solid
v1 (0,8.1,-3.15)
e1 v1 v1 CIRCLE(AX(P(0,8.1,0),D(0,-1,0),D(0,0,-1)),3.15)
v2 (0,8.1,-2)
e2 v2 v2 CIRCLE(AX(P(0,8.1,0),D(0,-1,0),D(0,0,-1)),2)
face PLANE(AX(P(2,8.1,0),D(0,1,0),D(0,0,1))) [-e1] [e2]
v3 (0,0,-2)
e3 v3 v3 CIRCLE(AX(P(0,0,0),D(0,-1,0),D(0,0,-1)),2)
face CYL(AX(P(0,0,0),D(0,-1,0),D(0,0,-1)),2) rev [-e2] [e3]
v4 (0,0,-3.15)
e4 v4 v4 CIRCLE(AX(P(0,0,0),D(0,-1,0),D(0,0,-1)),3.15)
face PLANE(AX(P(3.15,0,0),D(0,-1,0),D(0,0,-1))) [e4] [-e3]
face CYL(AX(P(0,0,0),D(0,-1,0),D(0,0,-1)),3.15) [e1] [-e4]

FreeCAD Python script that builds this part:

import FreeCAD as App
import Part
import Sketcher

doc = App.newDocument("Part")
body = doc.addObject("PartDesign::Body", "Body")

# Sketch on XY plane
sketch1 = body.newObject("Sketcher::SketchObject", "Sketch")
sketch1.AttachmentSupport = (doc.getObject("XY_Plane"), [""])
sketch1.MapMode = "FlatFace"
sketch1.addGeometry(Part.LineSegment(App.Vector(2, 8.1, 0), App.Vector(2, 0, 0)), False)
sketch1.addGeometry(Part.LineSegment(App.Vector(2, 0, 0), App.Vector(3.15, 0, 0)), False)
sketch1.addGeometry(Part.LineSegment(App.Vector(3.15, 0, 0), App.Vector(3.15, 8.1, 0)), False)
sketch1.addGeometry(Part.LineSegment(App.Vector(3.15, 8.1, 0), App.Vector(2, 8.1, 0)), False)
sketch1.addConstraint(Sketcher.Constraint("Coincident", 0, 2, 1, 1))
sketch1.addConstraint(Sketcher.Constraint("Coincident", 1, 2, 2, 1))
sketch1.addConstraint(Sketcher.Constraint("Coincident", 2, 2, 3, 1))
sketch1.addConstraint(Sketcher.Constraint("Coincident", 3, 2, 0, 1))
sketch1.addConstraint(Sketcher.Constraint("Vertical", 0))
sketch1.addConstraint(Sketcher.Constraint("Horizontal", 1))
sketch1.addConstraint(Sketcher.Constraint("Vertical", 2))
sketch1.addConstraint(Sketcher.Constraint("Horizontal", 3))
sketch1.addConstraint(Sketcher.Constraint("PointOnObject", 0, 2, -1))
sketch1.addConstraint(Sketcher.Constraint("DistanceY", 0, 2, 0, 1, 8.1))
sketch1.addConstraint(Sketcher.Constraint("DistanceX", -1, 1, 0, 2, 2.0))
sketch1.addConstraint(Sketcher.Constraint("DistanceX", 1, 1, 1, 2, 1.15))
revolution = body.newObject("PartDesign::Revolution", "Revolution")
revolution.Profile = sketch1
revolution.ReferenceAxis = (sketch1, ["V_Axis"])
revolution.Angle = 360

doc.recompute()
